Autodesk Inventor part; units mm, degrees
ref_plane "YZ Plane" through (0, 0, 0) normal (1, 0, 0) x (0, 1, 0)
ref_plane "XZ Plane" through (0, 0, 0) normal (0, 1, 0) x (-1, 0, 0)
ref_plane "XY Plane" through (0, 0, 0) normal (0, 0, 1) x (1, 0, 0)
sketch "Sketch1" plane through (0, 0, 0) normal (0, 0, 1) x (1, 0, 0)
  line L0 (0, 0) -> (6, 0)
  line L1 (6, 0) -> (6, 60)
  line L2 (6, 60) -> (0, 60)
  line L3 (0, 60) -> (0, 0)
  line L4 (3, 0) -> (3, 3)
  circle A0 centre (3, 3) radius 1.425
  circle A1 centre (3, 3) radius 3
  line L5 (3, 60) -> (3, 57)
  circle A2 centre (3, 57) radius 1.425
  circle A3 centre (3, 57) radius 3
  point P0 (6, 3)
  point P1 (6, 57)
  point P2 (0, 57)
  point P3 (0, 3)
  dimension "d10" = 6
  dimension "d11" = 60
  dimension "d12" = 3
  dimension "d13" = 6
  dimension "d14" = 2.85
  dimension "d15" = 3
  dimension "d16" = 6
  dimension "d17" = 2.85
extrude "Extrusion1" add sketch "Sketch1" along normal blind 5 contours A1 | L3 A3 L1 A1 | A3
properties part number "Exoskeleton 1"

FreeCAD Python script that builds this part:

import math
import FreeCAD as App
import Part
import Sketcher

V = App.Vector

doc = App.newDocument("Part")
body = doc.addObject("PartDesign::Body", "Body")

sketch1 = body.newObject("Sketcher::SketchObject", "Sketch")
sketch1.AttachmentSupport = (doc.getObject("XY_Plane"), [""])
sketch1.MapMode = "FlatFace"
sketch1.addGeometry(Part.ArcOfCircle(Part.Circle(V(3, 3, 0), V(0, 0, 1), 3), math.radians(180), math.radians(270)), False)
sketch1.addGeometry(Part.ArcOfCircle(Part.Circle(V(3, 3, 0), V(0, 0, 1), 3), math.radians(-90), math.radians(0)), False)
sketch1.addGeometry(Part.LineSegment(V(6, 3, 0), V(6, 57, 0)), False)
sketch1.addGeometry(Part.ArcOfCircle(Part.Circle(V(3, 57, 0), V(0, 0, 1), 3), math.radians(0), math.radians(90)), False)
sketch1.addGeometry(Part.ArcOfCircle(Part.Circle(V(3, 57, 0), V(0, 0, 1), 3), math.radians(90), math.radians(180)), False)
sketch1.addGeometry(Part.LineSegment(V(0, 57, 0), V(0, 3, 0)), False)
sketch1.addGeometry(Part.Circle(V(3, 3, 0), V(0, 0, 1), 1.4), False)
sketch1.addGeometry(Part.Circle(V(3, 57, 0), V(0, 0, 1), 1.4), False)
sketch1.addConstraint(Sketcher.Constraint("Tangent", 0, 2, 1, 1))
sketch1.addConstraint(Sketcher.Constraint("Tangent", 1, 2, 2, 1))
sketch1.addConstraint(Sketcher.Constraint("Tangent", 2, 2, 3, 1))
sketch1.addConstraint(Sketcher.Constraint("Tangent", 3, 2, 4, 1))
sketch1.addConstraint(Sketcher.Constraint("Tangent", 4, 2, 5, 1))
sketch1.addConstraint(Sketcher.Constraint("Tangent", 5, 2, 0, 1))
sketch1.addConstraint(Sketcher.Constraint("Vertical", 2))
sketch1.addConstraint(Sketcher.Constraint("Vertical", 5))
sketch1.addConstraint(Sketcher.Constraint("Coincident", 6, 3, 0, 3))
sketch1.addConstraint(Sketcher.Constraint("Coincident", 7, 3, 3, 3))
sketch1.addConstraint(Sketcher.Constraint("Equal", 0, 1))
sketch1.addConstraint(Sketcher.Constraint("Equal", 1, 3))
sketch1.addConstraint(Sketcher.Constraint("Equal", 6, 7))
sketch1.addConstraint(Sketcher.Constraint("PointOnObject", 0, 2, -1))
sketch1.addConstraint(Sketcher.Constraint("PointOnObject", 4, 2, -2))
sketch1.addConstraint(Sketcher.Constraint("Vertical", 7, 3, 0, 2))
sketch1.addConstraint(Sketcher.Constraint("Vertical", 0, 2, 3, 2))
sketch1.addConstraint(Sketcher.Constraint("Radius", 0, 3.0))
sketch1.addConstraint(Sketcher.Constraint("Diameter", 6, 2.85))
sketch1.addConstraint(Sketcher.Constraint("DistanceY", -1, 1, 3, 2, 60.0))
pad1 = body.newObject("PartDesign::Pad", "Pad")
pad1.Profile = sketch1
pad1.Length = 5

doc.recompute()
